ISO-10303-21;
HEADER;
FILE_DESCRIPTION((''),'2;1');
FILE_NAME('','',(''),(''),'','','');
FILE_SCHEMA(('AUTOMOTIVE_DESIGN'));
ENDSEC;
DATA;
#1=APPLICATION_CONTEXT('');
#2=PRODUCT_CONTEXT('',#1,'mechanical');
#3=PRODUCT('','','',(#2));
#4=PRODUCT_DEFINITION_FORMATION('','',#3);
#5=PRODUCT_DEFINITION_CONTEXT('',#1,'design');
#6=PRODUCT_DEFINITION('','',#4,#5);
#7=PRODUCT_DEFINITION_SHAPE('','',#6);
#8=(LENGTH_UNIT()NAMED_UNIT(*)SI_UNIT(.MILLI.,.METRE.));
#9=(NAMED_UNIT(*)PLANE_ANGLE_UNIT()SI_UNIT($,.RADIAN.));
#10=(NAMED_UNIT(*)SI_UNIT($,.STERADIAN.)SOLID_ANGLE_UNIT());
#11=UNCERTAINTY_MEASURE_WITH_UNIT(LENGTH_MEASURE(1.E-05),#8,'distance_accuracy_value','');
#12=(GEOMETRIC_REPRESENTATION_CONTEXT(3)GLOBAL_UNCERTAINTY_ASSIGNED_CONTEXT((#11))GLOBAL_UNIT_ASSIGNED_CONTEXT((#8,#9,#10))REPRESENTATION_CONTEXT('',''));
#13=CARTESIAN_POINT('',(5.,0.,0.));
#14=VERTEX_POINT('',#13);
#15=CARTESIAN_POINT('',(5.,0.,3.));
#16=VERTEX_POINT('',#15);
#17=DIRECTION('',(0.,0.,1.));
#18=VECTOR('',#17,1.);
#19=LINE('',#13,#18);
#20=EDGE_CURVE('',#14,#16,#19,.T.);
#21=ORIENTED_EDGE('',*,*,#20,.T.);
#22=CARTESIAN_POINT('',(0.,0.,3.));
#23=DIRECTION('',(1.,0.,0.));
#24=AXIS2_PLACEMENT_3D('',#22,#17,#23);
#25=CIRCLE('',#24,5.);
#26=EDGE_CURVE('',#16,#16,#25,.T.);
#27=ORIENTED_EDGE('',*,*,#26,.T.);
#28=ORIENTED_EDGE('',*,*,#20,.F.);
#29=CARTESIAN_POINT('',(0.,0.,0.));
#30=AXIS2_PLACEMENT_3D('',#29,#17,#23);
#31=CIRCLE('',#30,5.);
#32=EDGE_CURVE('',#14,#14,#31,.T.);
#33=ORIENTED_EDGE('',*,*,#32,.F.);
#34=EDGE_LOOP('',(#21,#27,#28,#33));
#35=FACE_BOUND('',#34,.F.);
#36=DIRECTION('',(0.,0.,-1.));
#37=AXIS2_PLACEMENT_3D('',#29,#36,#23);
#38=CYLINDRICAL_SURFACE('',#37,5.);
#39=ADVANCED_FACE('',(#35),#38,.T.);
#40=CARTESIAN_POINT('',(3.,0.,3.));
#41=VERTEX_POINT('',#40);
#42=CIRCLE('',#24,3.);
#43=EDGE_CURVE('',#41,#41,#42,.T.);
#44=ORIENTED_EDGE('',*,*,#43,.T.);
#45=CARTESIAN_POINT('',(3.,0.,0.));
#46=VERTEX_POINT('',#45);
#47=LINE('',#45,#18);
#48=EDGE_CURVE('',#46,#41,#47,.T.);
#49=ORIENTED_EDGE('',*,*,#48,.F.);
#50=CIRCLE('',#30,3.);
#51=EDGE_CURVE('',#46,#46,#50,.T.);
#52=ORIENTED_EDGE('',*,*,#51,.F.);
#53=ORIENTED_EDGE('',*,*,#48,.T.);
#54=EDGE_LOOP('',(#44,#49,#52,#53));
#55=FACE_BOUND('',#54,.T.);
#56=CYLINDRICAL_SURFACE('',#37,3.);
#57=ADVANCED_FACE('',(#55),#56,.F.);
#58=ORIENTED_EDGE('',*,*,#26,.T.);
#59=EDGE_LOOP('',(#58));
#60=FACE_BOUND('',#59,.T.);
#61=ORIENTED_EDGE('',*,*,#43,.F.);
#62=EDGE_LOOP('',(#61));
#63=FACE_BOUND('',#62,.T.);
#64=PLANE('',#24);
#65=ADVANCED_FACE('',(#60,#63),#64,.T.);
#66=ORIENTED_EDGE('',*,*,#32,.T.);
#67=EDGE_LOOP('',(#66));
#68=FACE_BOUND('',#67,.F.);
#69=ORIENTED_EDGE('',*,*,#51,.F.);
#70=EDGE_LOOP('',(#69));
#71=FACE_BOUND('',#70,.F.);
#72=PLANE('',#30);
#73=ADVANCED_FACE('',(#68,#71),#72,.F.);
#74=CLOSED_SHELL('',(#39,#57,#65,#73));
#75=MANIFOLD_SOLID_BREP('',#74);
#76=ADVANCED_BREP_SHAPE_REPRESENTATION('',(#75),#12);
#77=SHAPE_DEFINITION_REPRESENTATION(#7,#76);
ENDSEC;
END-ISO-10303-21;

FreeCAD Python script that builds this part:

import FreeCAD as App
import Part
import Sketcher
Q = App.Units.Quantity

doc = App.newDocument("Part")
body = doc.addObject("PartDesign::Body", "Body")

sketch1 = body.newObject("Sketcher::SketchObject", "Sketch")
sketch1.AttachmentSupport = (doc.getObject("XY_Plane"), [""])
sketch1.MapMode = "FlatFace"
sketch1.addGeometry([
    Part.Circle(App.Vector(0, 0, 0), App.Vector(0, 0, 1), 5),
    Part.Circle(App.Vector(0, 0, 0), App.Vector(0, 0, 1), 3),
], False)
sketch1.addConstraint([
    Sketcher.Constraint("Coincident", 0, 3, -1, 1),
    Sketcher.Constraint("Coincident", 1, 3, -1, 1),
    Sketcher.Constraint("Diameter", 0, Q("10 mm")),
    Sketcher.Constraint("Diameter", 1, Q("6 mm")),
])
pad1 = body.newObject("PartDesign::Pad", "Pad")
pad1.Profile = sketch1
pad1.Length = 3

doc.recompute()
